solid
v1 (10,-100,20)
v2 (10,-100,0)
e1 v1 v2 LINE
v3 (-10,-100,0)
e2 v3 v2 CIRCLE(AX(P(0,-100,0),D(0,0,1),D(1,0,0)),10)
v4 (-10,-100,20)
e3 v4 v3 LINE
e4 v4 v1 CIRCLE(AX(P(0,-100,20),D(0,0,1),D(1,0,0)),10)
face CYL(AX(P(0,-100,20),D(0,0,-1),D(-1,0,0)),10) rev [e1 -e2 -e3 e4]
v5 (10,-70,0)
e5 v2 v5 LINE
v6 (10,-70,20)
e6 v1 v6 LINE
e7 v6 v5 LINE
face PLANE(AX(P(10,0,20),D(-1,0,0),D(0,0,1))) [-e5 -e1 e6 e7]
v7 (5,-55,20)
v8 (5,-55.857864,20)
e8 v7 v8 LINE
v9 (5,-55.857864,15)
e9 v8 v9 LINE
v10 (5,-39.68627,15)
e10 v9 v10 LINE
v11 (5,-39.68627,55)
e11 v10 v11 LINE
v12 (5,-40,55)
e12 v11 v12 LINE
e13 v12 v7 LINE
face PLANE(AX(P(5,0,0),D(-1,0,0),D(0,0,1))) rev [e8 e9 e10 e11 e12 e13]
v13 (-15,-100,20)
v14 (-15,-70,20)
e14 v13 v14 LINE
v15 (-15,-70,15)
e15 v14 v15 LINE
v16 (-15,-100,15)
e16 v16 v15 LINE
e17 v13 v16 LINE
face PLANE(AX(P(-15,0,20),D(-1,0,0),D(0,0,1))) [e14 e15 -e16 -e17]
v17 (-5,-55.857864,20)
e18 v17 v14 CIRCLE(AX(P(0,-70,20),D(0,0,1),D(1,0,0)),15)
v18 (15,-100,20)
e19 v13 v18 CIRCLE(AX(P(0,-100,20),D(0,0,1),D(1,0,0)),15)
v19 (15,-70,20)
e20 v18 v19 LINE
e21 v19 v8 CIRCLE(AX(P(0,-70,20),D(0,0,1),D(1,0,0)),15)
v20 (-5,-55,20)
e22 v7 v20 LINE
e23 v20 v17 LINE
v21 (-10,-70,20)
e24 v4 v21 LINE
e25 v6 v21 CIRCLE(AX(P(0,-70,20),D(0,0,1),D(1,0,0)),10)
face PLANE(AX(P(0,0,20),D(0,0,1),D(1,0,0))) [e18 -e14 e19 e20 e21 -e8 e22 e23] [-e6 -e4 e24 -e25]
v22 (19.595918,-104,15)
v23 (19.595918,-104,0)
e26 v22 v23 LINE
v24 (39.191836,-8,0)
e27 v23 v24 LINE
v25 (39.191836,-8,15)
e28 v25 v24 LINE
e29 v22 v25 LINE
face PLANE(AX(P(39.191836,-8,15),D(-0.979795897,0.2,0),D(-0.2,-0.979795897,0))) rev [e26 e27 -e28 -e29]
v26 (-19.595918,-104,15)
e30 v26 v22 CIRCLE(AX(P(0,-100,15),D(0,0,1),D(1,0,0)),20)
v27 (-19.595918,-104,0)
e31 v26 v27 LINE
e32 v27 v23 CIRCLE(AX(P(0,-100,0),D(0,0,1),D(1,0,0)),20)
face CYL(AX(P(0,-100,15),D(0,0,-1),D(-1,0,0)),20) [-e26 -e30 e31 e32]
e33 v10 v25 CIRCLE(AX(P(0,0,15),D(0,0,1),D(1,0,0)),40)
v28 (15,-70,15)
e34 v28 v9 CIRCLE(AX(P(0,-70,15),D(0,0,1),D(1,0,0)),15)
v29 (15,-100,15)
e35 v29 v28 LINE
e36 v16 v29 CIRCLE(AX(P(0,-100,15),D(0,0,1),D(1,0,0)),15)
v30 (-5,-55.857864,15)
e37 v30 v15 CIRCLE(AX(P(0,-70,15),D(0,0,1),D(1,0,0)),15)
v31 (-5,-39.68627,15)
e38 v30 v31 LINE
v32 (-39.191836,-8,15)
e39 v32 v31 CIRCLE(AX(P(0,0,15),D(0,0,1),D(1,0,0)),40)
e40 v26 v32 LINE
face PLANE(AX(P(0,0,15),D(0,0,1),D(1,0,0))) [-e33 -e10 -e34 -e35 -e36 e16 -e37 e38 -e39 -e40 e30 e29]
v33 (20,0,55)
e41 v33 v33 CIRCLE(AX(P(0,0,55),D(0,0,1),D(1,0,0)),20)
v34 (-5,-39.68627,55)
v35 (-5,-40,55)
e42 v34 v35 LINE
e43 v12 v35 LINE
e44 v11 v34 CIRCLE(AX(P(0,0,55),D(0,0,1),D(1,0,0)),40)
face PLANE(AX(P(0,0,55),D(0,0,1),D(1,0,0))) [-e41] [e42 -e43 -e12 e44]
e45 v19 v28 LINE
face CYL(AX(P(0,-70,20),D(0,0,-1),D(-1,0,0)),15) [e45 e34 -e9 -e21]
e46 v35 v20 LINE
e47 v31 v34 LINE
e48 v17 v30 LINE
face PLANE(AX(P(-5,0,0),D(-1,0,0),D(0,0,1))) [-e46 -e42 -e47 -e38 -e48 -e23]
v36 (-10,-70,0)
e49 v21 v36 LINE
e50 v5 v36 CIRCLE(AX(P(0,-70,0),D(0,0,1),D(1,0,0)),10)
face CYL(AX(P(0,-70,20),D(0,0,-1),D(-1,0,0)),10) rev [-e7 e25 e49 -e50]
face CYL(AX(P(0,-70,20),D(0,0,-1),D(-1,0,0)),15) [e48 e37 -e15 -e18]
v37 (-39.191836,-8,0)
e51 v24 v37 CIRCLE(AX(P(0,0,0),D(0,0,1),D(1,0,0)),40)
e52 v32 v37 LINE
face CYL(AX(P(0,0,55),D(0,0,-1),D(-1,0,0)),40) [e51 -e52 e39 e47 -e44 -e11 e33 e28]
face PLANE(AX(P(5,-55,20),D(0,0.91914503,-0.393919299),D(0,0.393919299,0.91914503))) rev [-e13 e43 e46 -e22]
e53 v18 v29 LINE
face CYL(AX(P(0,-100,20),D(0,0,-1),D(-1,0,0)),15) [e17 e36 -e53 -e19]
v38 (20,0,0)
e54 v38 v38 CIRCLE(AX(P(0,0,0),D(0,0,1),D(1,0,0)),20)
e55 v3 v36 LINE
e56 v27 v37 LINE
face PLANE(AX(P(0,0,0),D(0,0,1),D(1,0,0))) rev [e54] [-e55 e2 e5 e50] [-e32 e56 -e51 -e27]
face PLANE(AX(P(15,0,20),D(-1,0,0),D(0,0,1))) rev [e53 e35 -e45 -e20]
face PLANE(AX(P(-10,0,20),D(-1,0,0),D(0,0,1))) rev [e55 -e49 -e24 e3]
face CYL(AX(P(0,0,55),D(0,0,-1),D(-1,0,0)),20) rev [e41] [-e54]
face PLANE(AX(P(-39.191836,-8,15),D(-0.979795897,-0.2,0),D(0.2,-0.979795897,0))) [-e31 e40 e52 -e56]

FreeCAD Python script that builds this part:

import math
import FreeCAD as App
import Part
import Sketcher
from FreeCAD import Vector
Q = App.Units.Quantity


def add_polygon(sketch, points):
    """Adds a closed chain of lines whose ends are joined by coincident constraints."""
    first, n = sketch.GeometryCount, len(points)
    for a, b in zip(points, points[1:] + points[:1]):
        sketch.addGeometry(Part.LineSegment(App.Vector(*a, 0), App.Vector(*b, 0)), False)
    for i in range(n):
        sketch.addConstraint(Sketcher.Constraint("Coincident", first + i, 2, first + (i + 1) % n, 1))

doc = App.newDocument("Part")
params = doc.addObject("Spreadsheet::Sheet", "Params")
for row, (alias, value) in enumerate([
    ("sketch1_radius", "20 mm"),
    ("sketch1_radius2", "40 mm"),
    ("sketch1_radius3", "15 mm"),
    ("sketch1_height", "30 mm"),
    ("pad1_length", "15 mm"),
    ("sketch2_radius", "15 mm"),
    ("sketch2_radius2", "10 mm"),
    ("sketch2_height", "30 mm"),
    ("pad2_length", "20 mm"),
    ("sketch3_diameter", "80 mm"),
    ("sketch3_diameter2", "40 mm"),
    ("pad3_length", "55 mm"),
    ("sketch4_width", "1 mm"),
    ("sketch4_width2", "17 mm"),
    ("sketch4_height", "5 mm"),
    ("sketch4_height2", "40 mm"),
    ("pad4_length", "10 mm"),
], start=1):
    params.set(f"A{row}", alias)
    params.set(f"B{row}", "=" + value)
    params.setAlias(f"B{row}", alias)

body = doc.addObject("PartDesign::Body", "Body")

# Sketch on XY plane
sketch1 = body.newObject("Sketcher::SketchObject", "Sketch")
sketch1.AttachmentSupport = (doc.getObject("XY_Plane"), [""])
sketch1.MapMode = "FlatFace"
sketch1.addGeometry(Part.LineSegment(Vector(-39, -8, 0), Vector(-20, -104, 0)), False)
sketch1.addGeometry(Part.ArcOfCircle(Part.Circle(Vector(0, -100, 0), Vector(0, 0, 1), 20), math.radians(-168), math.radians(-12)), False)
sketch1.addGeometry(Part.LineSegment(Vector(20, -104, 0), Vector(39, -8, 0)), False)
sketch1.addGeometry(Part.ArcOfCircle(Part.Circle(Vector(0, 0, 0), Vector(0, 0, 1), 40), math.radians(-168), math.radians(-12)), False)
sketch1.addGeometry(Part.LineSegment(Vector(15, -70, 0), Vector(15, -100, 0)), False)
sketch1.addGeometry(Part.ArcOfCircle(Part.Circle(Vector(0, -100, 0), Vector(0, 0, 1), 15), math.radians(180), math.radians(360)), False)
sketch1.addGeometry(Part.LineSegment(Vector(-15, -100, 0), Vector(-15, -70, 0)), False)
sketch1.addGeometry(Part.ArcOfCircle(Part.Circle(Vector(0, -70, 0), Vector(0, 0, 1), 15), math.radians(0), math.radians(180)), False)
sketch1.addConstraint(Sketcher.Constraint("Tangent", 0, 2, 1, 1))
sketch1.addConstraint(Sketcher.Constraint("Tangent", 1, 2, 2, 1))
sketch1.addConstraint(Sketcher.Constraint("Tangent", 2, 2, 3, 2))
sketch1.addConstraint(Sketcher.Constraint("Tangent", 3, 1, 0, 1))
sketch1.addConstraint(Sketcher.Constraint("Tangent", 4, 2, 5, 2))
sketch1.addConstraint(Sketcher.Constraint("Tangent", 5, 1, 6, 1))
sketch1.addConstraint(Sketcher.Constraint("Tangent", 6, 2, 7, 2))
sketch1.addConstraint(Sketcher.Constraint("Tangent", 7, 1, 4, 1))
sketch1.addConstraint(Sketcher.Constraint("Vertical", 4))
sketch1.addConstraint(Sketcher.Constraint("Vertical", 6))
sketch1.addConstraint(Sketcher.Constraint("Coincident", 3, 3, -1, 1))
sketch1.addConstraint(Sketcher.Constraint("Coincident", 5, 3, 1, 3))
sketch1.addConstraint(Sketcher.Constraint("PointOnObject", 1, 3, -2))
sketch1.addConstraint(Sketcher.Constraint("Radius", 1, Q("20 mm")))
sketch1.addConstraint(Sketcher.Constraint("Radius", 3, Q("40 mm")))
sketch1.addConstraint(Sketcher.Constraint("Radius", 5, Q("15 mm")))
sketch1.addConstraint(Sketcher.Constraint("DistanceY", 4, 2, 4, 1, Q("30 mm")))
sketch1.addConstraint(Sketcher.Constraint("DistanceY", 1, 3, -1, 1, Q("100 mm")))
sketch1.setExpression("Constraints[13]", "Params.sketch1_radius")
sketch1.setExpression("Constraints[14]", "Params.sketch1_radius2")
sketch1.setExpression("Constraints[15]", "Params.sketch1_radius3")
sketch1.setExpression("Constraints[16]", "Params.sketch1_height")
pad1 = body.newObject("PartDesign::Pad", "Pad")
pad1.Profile = sketch1
pad1.setExpression("Length", "Params.pad1_length")

# Sketch on XY plane
sketch2 = body.newObject("Sketcher::SketchObject", "Sketch001")
sketch2.AttachmentSupport = (doc.getObject("XY_Plane"), [""])
sketch2.MapMode = "FlatFace"
sketch2.addGeometry(Part.LineSegment(Vector(-15, -70, 0), Vector(-15, -100, 0)), False)
sketch2.addGeometry(Part.ArcOfCircle(Part.Circle(Vector(0, -100, 0), Vector(0, 0, 1), 15), math.radians(180), math.radians(360)), False)
sketch2.addGeometry(Part.LineSegment(Vector(15, -100, 0), Vector(15, -70, 0)), False)
sketch2.addGeometry(Part.ArcOfCircle(Part.Circle(Vector(0, -70, 0), Vector(0, 0, 1), 15), math.radians(0), math.radians(180)), False)
sketch2.addGeometry(Part.LineSegment(Vector(10, -70, 0), Vector(10, -100, 0)), False)
sketch2.addGeometry(Part.ArcOfCircle(Part.Circle(Vector(0, -100, 0), Vector(0, 0, 1), 10), math.radians(180), math.radians(360)), False)
sketch2.addGeometry(Part.LineSegment(Vector(-10, -100, 0), Vector(-10, -70, 0)), False)
sketch2.addGeometry(Part.ArcOfCircle(Part.Circle(Vector(0, -70, 0), Vector(0, 0, 1), 10), math.radians(0), math.radians(180)), False)
sketch2.addConstraint(Sketcher.Constraint("Tangent", 0, 2, 1, 1))
sketch2.addConstraint(Sketcher.Constraint("Tangent", 1, 2, 2, 1))
sketch2.addConstraint(Sketcher.Constraint("Tangent", 2, 2, 3, 1))
sketch2.addConstraint(Sketcher.Constraint("Tangent", 3, 2, 0, 1))
sketch2.addConstraint(Sketcher.Constraint("Tangent", 4, 2, 5, 2))
sketch2.addConstraint(Sketcher.Constraint("Tangent", 5, 1, 6, 1))
sketch2.addConstraint(Sketcher.Constraint("Tangent", 6, 2, 7, 2))
sketch2.addConstraint(Sketcher.Constraint("Tangent", 7, 1, 4, 1))
sketch2.addConstraint(Sketcher.Constraint("Vertical", 0))
sketch2.addConstraint(Sketcher.Constraint("Vertical", 2))
sketch2.addConstraint(Sketcher.Constraint("Vertical", 4))
sketch2.addConstraint(Sketcher.Constraint("Vertical", 6))
sketch2.addConstraint(Sketcher.Constraint("Coincident", 5, 3, 1, 3))
sketch2.addConstraint(Sketcher.Constraint("PointOnObject", 1, 3, -2))
sketch2.addConstraint(Sketcher.Constraint("Horizontal", 7, 3, 2, 2))
sketch2.addConstraint(Sketcher.Constraint("Radius", 1, Q("15 mm")))
sketch2.addConstraint(Sketcher.Constraint("Radius", 5, Q("10 mm")))
sketch2.addConstraint(Sketcher.Constraint("DistanceY", 0, 2, 0, 1, Q("30 mm")))
sketch2.addConstraint(Sketcher.Constraint("DistanceY", 1, 3, -1, 1, Q("100 mm")))
sketch2.setExpression("Constraints[15]", "Params.sketch2_radius")
sketch2.setExpression("Constraints[16]", "Params.sketch2_radius2")
sketch2.setExpression("Constraints[17]", "Params.sketch2_height")
pad2 = body.newObject("PartDesign::Pad", "Pad001")
pad2.Profile = sketch2
pad2.setExpression("Length", "Params.pad2_length")

# Sketch on XY plane
sketch3 = body.newObject("Sketcher::SketchObject", "Sketch002")
sketch3.AttachmentSupport = (doc.getObject("XY_Plane"), [""])
sketch3.MapMode = "FlatFace"
sketch3.addGeometry(Part.Circle(Vector(0, 0, 0), Vector(0, 0, 1), 40), False)
sketch3.addGeometry(Part.Circle(Vector(0, 0, 0), Vector(0, 0, 1), 20), False)
sketch3.addConstraint(Sketcher.Constraint("Coincident", 0, 3, -1, 1))
sketch3.addConstraint(Sketcher.Constraint("Coincident", 1, 3, -1, 1))
sketch3.addConstraint(Sketcher.Constraint("Diameter", 0, Q("80 mm")))
sketch3.addConstraint(Sketcher.Constraint("Diameter", 1, Q("40 mm")))
sketch3.setExpression("Constraints[2]", "Params.sketch3_diameter")
sketch3.setExpression("Constraints[3]", "Params.sketch3_diameter2")
pad3 = body.newObject("PartDesign::Pad", "Pad002")
pad3.Profile = sketch3
pad3.setExpression("Length", "Params.pad3_length")

# Sketch on YZ plane
sketch4 = body.newObject("Sketcher::SketchObject", "Sketch003")
sketch4.AttachmentSupport = (doc.getObject("YZ_Plane"), [""])
sketch4.MapMode = "FlatFace"
add_polygon(sketch4, [(-40, 55), (-55, 20), (-56, 20), (-56, 15), (-39, 15), (-39, 55)])  # lines 0-5
sketch4.addConstraint(Sketcher.Constraint("Horizontal", 1))
sketch4.addConstraint(Sketcher.Constraint("Vertical", 2))
sketch4.addConstraint(Sketcher.Constraint("Horizontal", 3))
sketch4.addConstraint(Sketcher.Constraint("Vertical", 4))
sketch4.addConstraint(Sketcher.Constraint("Horizontal", 5))
sketch4.addConstraint(Sketcher.Constraint("Equal", 1, 5))
sketch4.addConstraint(Sketcher.Constraint("DistanceX", 1, 2, 1, 1, Q("1 mm")))
sketch4.addConstraint(Sketcher.Constraint("DistanceX", 3, 1, 3, 2, Q("17 mm")))
sketch4.addConstraint(Sketcher.Constraint("DistanceY", 2, 2, 2, 1, Q("5 mm")))
sketch4.addConstraint(Sketcher.Constraint("DistanceY", 4, 1, 4, 2, Q("40 mm")))
sketch4.addConstraint(Sketcher.Constraint("DistanceX", 0, 2, -1, 1, Q("55 mm")))
sketch4.addConstraint(Sketcher.Constraint("DistanceY", -1, 1, 0, 2, Q("20 mm")))
sketch4.setExpression("Constraints[12]", "Params.sketch4_width")
sketch4.setExpression("Constraints[13]", "Params.sketch4_width2")
sketch4.setExpression("Constraints[14]", "Params.sketch4_height")
sketch4.setExpression("Constraints[15]", "Params.sketch4_height2")
pad4 = body.newObject("PartDesign::Pad", "Pad003")
pad4.Profile = sketch4
pad4.setExpression("Length", "Params.pad4_length")
pad4.Midplane = True

doc.recompute()
